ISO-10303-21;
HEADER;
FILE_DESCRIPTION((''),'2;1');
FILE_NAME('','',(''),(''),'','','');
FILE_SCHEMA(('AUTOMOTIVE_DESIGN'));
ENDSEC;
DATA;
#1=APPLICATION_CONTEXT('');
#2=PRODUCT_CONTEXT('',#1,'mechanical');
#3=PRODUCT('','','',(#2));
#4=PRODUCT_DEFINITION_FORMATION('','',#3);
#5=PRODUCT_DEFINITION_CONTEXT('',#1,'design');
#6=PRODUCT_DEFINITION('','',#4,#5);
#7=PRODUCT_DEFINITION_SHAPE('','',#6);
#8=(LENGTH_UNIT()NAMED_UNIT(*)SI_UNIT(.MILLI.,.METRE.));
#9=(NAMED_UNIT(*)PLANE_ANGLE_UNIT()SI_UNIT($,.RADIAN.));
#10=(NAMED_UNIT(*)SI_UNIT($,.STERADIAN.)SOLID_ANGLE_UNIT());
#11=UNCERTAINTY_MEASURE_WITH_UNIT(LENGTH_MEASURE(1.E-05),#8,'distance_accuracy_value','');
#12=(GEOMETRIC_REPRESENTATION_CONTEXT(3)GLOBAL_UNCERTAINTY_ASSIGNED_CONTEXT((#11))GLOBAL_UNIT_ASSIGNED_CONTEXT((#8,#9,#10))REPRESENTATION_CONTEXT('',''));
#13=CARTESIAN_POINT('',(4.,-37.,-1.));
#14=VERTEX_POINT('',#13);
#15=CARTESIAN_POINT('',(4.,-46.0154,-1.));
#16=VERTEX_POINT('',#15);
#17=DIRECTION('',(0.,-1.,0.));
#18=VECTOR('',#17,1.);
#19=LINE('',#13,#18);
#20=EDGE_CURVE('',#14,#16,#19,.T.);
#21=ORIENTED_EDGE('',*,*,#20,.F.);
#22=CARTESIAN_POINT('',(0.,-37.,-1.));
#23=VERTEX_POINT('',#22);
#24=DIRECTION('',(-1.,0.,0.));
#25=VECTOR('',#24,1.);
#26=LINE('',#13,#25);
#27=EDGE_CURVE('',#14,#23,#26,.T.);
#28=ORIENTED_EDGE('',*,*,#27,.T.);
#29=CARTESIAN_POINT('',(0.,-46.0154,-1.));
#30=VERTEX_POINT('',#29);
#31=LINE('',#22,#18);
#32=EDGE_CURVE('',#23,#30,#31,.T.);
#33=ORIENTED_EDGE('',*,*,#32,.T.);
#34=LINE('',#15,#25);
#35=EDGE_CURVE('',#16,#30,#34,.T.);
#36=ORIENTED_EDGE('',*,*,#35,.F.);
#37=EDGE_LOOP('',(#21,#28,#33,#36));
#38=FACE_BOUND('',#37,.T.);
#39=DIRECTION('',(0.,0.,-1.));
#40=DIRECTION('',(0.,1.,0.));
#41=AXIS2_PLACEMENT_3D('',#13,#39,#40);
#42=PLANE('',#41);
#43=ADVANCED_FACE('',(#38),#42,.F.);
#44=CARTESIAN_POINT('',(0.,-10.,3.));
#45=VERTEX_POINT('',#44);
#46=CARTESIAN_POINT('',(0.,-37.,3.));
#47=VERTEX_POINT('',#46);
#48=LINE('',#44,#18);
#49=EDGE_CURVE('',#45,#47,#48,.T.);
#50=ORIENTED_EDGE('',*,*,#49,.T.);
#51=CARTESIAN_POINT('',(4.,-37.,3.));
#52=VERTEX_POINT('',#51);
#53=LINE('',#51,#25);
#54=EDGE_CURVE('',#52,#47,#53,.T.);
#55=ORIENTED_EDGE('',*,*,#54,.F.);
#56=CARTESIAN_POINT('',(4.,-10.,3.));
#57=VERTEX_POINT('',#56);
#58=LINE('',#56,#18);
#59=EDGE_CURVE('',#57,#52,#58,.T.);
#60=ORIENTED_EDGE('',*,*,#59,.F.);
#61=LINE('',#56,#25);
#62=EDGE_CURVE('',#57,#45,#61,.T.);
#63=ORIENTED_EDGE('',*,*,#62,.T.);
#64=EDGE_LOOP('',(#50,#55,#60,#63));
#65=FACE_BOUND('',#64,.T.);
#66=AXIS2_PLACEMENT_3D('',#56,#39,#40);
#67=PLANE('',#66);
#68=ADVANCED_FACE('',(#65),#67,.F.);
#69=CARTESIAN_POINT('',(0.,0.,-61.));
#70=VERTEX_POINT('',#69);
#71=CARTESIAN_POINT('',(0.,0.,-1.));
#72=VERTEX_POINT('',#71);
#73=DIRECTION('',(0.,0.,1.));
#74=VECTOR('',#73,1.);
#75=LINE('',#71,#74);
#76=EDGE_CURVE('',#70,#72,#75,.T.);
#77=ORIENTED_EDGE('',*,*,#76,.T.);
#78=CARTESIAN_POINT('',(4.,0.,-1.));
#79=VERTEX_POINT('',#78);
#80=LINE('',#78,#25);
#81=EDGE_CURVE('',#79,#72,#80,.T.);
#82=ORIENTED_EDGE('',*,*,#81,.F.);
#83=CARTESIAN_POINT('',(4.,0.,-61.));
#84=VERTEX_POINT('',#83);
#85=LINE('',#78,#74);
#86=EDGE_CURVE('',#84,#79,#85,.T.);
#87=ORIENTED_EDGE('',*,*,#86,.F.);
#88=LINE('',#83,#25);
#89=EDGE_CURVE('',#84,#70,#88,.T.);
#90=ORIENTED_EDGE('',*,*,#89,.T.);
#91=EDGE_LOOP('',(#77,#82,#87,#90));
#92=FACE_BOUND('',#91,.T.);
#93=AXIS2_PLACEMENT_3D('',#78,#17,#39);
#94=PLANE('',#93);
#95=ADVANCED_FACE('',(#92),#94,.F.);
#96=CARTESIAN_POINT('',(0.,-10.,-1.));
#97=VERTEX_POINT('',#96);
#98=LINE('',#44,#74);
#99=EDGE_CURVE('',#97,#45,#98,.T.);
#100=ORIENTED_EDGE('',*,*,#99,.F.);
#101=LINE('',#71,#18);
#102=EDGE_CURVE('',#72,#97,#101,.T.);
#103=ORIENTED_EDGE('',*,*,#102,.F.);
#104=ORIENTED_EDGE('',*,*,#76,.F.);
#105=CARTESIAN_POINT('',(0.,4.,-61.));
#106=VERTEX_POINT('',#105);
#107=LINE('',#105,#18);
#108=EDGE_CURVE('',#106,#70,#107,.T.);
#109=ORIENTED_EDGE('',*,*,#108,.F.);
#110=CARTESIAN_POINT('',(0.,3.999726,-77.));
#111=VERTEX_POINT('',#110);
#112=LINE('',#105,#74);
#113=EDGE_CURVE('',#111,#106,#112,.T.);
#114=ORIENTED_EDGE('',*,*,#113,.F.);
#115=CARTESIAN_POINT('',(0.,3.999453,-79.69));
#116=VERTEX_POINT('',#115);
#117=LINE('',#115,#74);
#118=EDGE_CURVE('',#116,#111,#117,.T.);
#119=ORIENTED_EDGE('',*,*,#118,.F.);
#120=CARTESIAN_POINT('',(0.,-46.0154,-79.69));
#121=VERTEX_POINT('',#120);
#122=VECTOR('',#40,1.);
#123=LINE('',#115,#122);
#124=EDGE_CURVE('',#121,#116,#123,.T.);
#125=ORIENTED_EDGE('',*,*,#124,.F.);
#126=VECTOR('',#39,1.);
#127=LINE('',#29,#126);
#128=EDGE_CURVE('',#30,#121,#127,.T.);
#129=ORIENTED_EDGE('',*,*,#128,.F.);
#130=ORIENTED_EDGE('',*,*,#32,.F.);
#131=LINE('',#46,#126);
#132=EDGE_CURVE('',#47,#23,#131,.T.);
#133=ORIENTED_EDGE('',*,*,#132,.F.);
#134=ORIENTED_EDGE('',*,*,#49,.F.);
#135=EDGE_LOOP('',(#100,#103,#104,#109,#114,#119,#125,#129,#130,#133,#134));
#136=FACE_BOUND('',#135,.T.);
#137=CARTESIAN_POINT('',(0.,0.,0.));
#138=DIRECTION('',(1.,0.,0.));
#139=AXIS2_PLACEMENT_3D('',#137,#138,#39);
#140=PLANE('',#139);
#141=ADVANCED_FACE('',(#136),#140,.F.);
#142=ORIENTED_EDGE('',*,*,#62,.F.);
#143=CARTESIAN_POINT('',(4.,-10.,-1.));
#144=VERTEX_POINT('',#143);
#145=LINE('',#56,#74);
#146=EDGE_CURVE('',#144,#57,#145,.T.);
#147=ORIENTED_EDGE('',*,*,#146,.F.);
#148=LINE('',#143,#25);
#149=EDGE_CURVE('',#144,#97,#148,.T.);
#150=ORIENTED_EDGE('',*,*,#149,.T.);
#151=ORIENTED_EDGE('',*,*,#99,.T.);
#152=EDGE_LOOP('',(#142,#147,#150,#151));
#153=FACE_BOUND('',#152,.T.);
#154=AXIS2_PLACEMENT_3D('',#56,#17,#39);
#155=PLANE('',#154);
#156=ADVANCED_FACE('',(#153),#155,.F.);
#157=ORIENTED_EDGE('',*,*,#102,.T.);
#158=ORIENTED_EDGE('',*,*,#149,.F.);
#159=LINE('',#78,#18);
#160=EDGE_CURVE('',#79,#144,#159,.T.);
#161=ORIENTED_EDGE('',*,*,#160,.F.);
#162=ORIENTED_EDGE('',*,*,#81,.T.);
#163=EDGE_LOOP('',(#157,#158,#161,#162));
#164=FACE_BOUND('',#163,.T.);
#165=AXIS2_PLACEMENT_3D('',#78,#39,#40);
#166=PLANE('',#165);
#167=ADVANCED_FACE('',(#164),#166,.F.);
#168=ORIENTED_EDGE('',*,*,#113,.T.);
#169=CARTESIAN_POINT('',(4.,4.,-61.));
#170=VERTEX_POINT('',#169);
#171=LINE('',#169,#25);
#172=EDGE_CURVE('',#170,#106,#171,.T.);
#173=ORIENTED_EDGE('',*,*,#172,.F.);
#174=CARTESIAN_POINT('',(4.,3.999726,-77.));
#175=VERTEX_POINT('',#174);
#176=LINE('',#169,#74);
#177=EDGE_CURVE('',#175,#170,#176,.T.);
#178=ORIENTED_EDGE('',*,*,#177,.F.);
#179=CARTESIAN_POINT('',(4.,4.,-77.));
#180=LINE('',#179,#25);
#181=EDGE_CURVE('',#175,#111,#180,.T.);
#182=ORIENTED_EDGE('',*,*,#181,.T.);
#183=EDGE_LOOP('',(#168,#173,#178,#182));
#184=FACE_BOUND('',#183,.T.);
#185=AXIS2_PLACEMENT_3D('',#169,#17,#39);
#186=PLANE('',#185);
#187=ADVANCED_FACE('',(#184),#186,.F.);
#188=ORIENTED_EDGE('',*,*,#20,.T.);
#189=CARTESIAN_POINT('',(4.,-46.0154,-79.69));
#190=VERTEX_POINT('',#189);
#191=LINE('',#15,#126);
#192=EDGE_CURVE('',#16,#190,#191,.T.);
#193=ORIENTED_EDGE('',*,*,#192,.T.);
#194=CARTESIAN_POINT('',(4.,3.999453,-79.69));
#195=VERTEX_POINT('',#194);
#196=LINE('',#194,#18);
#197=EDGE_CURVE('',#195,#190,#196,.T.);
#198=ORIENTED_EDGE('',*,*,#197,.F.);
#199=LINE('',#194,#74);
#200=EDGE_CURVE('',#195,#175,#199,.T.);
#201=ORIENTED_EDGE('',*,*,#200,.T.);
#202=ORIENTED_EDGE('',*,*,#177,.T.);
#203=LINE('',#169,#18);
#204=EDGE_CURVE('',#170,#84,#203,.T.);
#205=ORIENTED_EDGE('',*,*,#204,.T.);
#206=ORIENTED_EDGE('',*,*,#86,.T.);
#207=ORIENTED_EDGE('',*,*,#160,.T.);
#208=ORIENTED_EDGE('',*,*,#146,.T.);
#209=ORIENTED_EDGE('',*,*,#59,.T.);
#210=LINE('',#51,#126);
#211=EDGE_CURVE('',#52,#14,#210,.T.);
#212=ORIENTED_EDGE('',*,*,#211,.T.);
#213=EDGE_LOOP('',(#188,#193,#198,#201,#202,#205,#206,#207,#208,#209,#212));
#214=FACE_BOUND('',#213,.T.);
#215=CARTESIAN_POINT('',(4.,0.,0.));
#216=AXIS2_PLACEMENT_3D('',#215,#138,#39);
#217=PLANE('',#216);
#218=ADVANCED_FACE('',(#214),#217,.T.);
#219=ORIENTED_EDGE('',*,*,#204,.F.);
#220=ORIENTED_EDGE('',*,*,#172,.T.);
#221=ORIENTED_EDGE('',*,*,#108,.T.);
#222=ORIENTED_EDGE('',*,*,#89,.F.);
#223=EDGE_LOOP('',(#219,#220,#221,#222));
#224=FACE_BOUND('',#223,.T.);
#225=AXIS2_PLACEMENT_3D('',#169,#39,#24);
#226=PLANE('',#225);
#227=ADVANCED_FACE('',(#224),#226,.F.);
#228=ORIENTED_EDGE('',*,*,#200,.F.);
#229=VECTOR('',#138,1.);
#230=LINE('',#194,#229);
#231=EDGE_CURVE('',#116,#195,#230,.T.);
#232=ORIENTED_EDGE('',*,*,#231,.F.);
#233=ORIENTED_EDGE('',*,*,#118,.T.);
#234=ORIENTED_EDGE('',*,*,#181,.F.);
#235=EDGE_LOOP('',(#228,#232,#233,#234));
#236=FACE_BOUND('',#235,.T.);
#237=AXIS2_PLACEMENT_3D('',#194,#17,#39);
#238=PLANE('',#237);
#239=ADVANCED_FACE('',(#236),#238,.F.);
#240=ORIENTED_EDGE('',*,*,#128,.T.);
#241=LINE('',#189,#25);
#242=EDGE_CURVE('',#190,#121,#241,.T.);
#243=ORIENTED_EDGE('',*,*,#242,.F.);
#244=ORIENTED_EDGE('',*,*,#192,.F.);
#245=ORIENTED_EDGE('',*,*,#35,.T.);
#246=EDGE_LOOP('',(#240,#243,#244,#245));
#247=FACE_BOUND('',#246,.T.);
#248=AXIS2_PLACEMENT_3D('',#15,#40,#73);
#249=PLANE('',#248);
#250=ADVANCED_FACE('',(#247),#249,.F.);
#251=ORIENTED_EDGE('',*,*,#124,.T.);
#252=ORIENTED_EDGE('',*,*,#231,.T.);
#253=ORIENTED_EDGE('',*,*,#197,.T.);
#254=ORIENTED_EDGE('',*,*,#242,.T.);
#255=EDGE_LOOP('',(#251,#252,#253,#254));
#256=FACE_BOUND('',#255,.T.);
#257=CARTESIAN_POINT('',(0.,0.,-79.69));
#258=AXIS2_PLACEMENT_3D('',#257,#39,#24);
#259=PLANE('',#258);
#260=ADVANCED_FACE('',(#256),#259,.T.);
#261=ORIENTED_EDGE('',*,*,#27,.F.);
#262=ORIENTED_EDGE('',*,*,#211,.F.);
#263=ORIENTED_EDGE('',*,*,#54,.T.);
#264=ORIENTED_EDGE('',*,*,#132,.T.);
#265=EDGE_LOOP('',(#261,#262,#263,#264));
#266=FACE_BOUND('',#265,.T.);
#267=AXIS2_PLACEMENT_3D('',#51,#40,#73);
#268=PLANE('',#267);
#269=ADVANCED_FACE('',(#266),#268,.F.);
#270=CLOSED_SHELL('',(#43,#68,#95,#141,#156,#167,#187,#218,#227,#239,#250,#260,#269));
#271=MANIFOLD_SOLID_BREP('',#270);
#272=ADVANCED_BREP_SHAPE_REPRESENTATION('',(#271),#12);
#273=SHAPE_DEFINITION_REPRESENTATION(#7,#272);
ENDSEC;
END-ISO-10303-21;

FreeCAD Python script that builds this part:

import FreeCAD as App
import Part
import Sketcher

V = App.Vector


def add_polygon(sketch, points):
    """Adds a closed chain of lines whose ends are joined by coincident constraints."""
    first, n = sketch.GeometryCount, len(points)
    for a, b in zip(points, points[1:] + points[:1]):
        sketch.addGeometry(Part.LineSegment(App.Vector(*a, 0), App.Vector(*b, 0)), False)
    for i in range(n):
        sketch.addConstraint(Sketcher.Constraint("Coincident", first + i, 2, first + (i + 1) % n, 1))

doc = App.newDocument("Part")
body = doc.addObject("PartDesign::Body", "Body")

# Sketch on YZ plane
sketch1 = doc.addObject("Sketcher::SketchObject", "Sketch")
body.addObject(sketch1)
sketch1.AttachmentSupport = (doc.YZ_Plane, [""])
sketch1.MapMode = "FlatFace"
add_polygon(sketch1, [(4, -101), (4, -61), (0, -61), (0, -1), (-10, -1), (-10, 3), (-37, 3), (-37, -1), (-46, -1), (-46, -161.8), (-37, -161.8), (-37, -165.8), (-10, -165.8), (-10, -161.8), (0, -161.8), (0, -101)])  # lines 0-15
sketch1.addConstraint(Sketcher.Constraint("Vertical", 0))
sketch1.addConstraint(Sketcher.Constraint("Horizontal", 1))
sketch1.addConstraint(Sketcher.Constraint("Vertical", 2))
sketch1.addConstraint(Sketcher.Constraint("Horizontal", 3))
sketch1.addConstraint(Sketcher.Constraint("Vertical", 4))
sketch1.addConstraint(Sketcher.Constraint("Horizontal", 5))
sketch1.addConstraint(Sketcher.Constraint("Vertical", 6))
sketch1.addConstraint(Sketcher.Constraint("Horizontal", 7))
sketch1.addConstraint(Sketcher.Constraint("Vertical", 8))
sketch1.addConstraint(Sketcher.Constraint("Horizontal", 9))
sketch1.addConstraint(Sketcher.Constraint("Vertical", 10))
sketch1.addConstraint(Sketcher.Constraint("Horizontal", 11))
sketch1.addConstraint(Sketcher.Constraint("Vertical", 12))
sketch1.addConstraint(Sketcher.Constraint("Horizontal", 13))
sketch1.addConstraint(Sketcher.Constraint("Vertical", 14))
sketch1.addConstraint(Sketcher.Constraint("Horizontal", 15))
sketch1.addConstraint(Sketcher.Constraint("PointOnObject", 1, 2, -2))
sketch1.addConstraint(Sketcher.Constraint("PointOnObject", 13, 2, -2))
sketch1.addConstraint(Sketcher.Constraint("Horizontal", 3, 2, 6, 2))
sketch1.addConstraint(Sketcher.Constraint("Horizontal", 9, 2, 12, 2))
sketch1.addConstraint(Sketcher.Constraint("Vertical", 6, 2, 9, 2))
sketch1.addConstraint(Sketcher.Constraint("Vertical", 4, 2, 11, 2))
sketch1.addConstraint(Sketcher.Constraint("Equal", 15, 4))
sketch1.addConstraint(Sketcher.Constraint("Equal", 6, 10))
sketch1.addConstraint(Sketcher.Constraint("DistanceX", 1, 2, 1, 1, 4.0))
sketch1.addConstraint(Sketcher.Constraint("DistanceX", 3, 2, 3, 1, 10.0))
sketch1.addConstraint(Sketcher.Constraint("DistanceX", 5, 2, 5, 1, 27.0))
sketch1.addConstraint(Sketcher.Constraint("DistanceY", 0, 1, 0, 2, 40.0))
sketch1.addConstraint(Sketcher.Constraint("DistanceY", 2, 1, 2, 2, 60.0))
sketch1.addConstraint(Sketcher.Constraint("DistanceY", 0, 2, -1, 1, 61.0))
sketch1.addConstraint(Sketcher.Constraint("DistanceX", 7, 2, 7, 1, 9.0154))
sketch1.addConstraint(Sketcher.Constraint("DistanceY", 8, 2, 8, 1, 160.781661))
pad1 = doc.addObject("PartDesign::Pad", "Pad")
body.addObject(pad1)
pad1.Profile = sketch1
pad1.Length = 4

# Sketch on YZ plane
sketch2 = doc.addObject("Sketcher::SketchObject", "Sketch001")
body.addObject(sketch2)
sketch2.AttachmentSupport = (doc.YZ_Plane, [""])
sketch2.MapMode = "FlatFace"
add_polygon(sketch2, [(5, -187), (5, -77), (-57, -77), (-57, -187)])  # lines 0-3
sketch2.addConstraint(Sketcher.Constraint("Vertical", 0))
sketch2.addConstraint(Sketcher.Constraint("Horizontal", 1))
sketch2.addConstraint(Sketcher.Constraint("Vertical", 2))
sketch2.addConstraint(Sketcher.Constraint("Horizontal", 3))
sketch2.addConstraint(Sketcher.Constraint("DistanceY", 0, 2, -1, 1, 77.0))
sketch2.addConstraint(Sketcher.Constraint("DistanceX", 1, 2, 1, 1, 61.371556))
sketch2.addConstraint(Sketcher.Constraint("DistanceY", 0, 1, 0, 2, 110.139355))
sketch2.addConstraint(Sketcher.Constraint("DistanceX", -1, 1, 0, 2, 4.594081))
pocket1 = doc.addObject("PartDesign::Pocket", "Pocket")
body.addObject(pocket1)
pocket1.Profile = sketch2
pocket1.Type = "ThroughAll"
pocket1.Midplane = True

# Sketch on XY plane
sketch3 = doc.addObject("Sketcher::SketchObject", "Sketch002")
body.addObject(sketch3)
sketch3.AttachmentSupport = (doc.XY_Plane, [""])
sketch3.MapMode = "FlatFace"
sketch3.AttachmentOffset = App.Placement(V(0, 0, -77), App.Rotation())
add_polygon(sketch3, [(4, 4), (4, -46), (0, -46), (0, 4)])  # lines 0-3
sketch3.addConstraint(Sketcher.Constraint("Vertical", 0))
sketch3.addConstraint(Sketcher.Constraint("Horizontal", 1))
sketch3.addConstraint(Sketcher.Constraint("Vertical", 2))
sketch3.addConstraint(Sketcher.Constraint("Horizontal", 3))
sketch3.addConstraint(Sketcher.Constraint("PointOnObject", 1, 2, -2))
sketch3.addConstraint(Sketcher.Constraint("DistanceX", 1, 2, 1, 1, 4.0))
sketch3.addConstraint(Sketcher.Constraint("DistanceY", 0, 2, -1, 1, 46.0154))
sketch3.addConstraint(Sketcher.Constraint("DistanceY", 0, 2, 0, 1, 50.014853))
pad2 = doc.addObject("PartDesign::Pad", "Pad001")
body.addObject(pad2)
pad2.Profile = sketch3
pad2.Length = 2.69
pad2.Reversed = True

doc.recompute()
